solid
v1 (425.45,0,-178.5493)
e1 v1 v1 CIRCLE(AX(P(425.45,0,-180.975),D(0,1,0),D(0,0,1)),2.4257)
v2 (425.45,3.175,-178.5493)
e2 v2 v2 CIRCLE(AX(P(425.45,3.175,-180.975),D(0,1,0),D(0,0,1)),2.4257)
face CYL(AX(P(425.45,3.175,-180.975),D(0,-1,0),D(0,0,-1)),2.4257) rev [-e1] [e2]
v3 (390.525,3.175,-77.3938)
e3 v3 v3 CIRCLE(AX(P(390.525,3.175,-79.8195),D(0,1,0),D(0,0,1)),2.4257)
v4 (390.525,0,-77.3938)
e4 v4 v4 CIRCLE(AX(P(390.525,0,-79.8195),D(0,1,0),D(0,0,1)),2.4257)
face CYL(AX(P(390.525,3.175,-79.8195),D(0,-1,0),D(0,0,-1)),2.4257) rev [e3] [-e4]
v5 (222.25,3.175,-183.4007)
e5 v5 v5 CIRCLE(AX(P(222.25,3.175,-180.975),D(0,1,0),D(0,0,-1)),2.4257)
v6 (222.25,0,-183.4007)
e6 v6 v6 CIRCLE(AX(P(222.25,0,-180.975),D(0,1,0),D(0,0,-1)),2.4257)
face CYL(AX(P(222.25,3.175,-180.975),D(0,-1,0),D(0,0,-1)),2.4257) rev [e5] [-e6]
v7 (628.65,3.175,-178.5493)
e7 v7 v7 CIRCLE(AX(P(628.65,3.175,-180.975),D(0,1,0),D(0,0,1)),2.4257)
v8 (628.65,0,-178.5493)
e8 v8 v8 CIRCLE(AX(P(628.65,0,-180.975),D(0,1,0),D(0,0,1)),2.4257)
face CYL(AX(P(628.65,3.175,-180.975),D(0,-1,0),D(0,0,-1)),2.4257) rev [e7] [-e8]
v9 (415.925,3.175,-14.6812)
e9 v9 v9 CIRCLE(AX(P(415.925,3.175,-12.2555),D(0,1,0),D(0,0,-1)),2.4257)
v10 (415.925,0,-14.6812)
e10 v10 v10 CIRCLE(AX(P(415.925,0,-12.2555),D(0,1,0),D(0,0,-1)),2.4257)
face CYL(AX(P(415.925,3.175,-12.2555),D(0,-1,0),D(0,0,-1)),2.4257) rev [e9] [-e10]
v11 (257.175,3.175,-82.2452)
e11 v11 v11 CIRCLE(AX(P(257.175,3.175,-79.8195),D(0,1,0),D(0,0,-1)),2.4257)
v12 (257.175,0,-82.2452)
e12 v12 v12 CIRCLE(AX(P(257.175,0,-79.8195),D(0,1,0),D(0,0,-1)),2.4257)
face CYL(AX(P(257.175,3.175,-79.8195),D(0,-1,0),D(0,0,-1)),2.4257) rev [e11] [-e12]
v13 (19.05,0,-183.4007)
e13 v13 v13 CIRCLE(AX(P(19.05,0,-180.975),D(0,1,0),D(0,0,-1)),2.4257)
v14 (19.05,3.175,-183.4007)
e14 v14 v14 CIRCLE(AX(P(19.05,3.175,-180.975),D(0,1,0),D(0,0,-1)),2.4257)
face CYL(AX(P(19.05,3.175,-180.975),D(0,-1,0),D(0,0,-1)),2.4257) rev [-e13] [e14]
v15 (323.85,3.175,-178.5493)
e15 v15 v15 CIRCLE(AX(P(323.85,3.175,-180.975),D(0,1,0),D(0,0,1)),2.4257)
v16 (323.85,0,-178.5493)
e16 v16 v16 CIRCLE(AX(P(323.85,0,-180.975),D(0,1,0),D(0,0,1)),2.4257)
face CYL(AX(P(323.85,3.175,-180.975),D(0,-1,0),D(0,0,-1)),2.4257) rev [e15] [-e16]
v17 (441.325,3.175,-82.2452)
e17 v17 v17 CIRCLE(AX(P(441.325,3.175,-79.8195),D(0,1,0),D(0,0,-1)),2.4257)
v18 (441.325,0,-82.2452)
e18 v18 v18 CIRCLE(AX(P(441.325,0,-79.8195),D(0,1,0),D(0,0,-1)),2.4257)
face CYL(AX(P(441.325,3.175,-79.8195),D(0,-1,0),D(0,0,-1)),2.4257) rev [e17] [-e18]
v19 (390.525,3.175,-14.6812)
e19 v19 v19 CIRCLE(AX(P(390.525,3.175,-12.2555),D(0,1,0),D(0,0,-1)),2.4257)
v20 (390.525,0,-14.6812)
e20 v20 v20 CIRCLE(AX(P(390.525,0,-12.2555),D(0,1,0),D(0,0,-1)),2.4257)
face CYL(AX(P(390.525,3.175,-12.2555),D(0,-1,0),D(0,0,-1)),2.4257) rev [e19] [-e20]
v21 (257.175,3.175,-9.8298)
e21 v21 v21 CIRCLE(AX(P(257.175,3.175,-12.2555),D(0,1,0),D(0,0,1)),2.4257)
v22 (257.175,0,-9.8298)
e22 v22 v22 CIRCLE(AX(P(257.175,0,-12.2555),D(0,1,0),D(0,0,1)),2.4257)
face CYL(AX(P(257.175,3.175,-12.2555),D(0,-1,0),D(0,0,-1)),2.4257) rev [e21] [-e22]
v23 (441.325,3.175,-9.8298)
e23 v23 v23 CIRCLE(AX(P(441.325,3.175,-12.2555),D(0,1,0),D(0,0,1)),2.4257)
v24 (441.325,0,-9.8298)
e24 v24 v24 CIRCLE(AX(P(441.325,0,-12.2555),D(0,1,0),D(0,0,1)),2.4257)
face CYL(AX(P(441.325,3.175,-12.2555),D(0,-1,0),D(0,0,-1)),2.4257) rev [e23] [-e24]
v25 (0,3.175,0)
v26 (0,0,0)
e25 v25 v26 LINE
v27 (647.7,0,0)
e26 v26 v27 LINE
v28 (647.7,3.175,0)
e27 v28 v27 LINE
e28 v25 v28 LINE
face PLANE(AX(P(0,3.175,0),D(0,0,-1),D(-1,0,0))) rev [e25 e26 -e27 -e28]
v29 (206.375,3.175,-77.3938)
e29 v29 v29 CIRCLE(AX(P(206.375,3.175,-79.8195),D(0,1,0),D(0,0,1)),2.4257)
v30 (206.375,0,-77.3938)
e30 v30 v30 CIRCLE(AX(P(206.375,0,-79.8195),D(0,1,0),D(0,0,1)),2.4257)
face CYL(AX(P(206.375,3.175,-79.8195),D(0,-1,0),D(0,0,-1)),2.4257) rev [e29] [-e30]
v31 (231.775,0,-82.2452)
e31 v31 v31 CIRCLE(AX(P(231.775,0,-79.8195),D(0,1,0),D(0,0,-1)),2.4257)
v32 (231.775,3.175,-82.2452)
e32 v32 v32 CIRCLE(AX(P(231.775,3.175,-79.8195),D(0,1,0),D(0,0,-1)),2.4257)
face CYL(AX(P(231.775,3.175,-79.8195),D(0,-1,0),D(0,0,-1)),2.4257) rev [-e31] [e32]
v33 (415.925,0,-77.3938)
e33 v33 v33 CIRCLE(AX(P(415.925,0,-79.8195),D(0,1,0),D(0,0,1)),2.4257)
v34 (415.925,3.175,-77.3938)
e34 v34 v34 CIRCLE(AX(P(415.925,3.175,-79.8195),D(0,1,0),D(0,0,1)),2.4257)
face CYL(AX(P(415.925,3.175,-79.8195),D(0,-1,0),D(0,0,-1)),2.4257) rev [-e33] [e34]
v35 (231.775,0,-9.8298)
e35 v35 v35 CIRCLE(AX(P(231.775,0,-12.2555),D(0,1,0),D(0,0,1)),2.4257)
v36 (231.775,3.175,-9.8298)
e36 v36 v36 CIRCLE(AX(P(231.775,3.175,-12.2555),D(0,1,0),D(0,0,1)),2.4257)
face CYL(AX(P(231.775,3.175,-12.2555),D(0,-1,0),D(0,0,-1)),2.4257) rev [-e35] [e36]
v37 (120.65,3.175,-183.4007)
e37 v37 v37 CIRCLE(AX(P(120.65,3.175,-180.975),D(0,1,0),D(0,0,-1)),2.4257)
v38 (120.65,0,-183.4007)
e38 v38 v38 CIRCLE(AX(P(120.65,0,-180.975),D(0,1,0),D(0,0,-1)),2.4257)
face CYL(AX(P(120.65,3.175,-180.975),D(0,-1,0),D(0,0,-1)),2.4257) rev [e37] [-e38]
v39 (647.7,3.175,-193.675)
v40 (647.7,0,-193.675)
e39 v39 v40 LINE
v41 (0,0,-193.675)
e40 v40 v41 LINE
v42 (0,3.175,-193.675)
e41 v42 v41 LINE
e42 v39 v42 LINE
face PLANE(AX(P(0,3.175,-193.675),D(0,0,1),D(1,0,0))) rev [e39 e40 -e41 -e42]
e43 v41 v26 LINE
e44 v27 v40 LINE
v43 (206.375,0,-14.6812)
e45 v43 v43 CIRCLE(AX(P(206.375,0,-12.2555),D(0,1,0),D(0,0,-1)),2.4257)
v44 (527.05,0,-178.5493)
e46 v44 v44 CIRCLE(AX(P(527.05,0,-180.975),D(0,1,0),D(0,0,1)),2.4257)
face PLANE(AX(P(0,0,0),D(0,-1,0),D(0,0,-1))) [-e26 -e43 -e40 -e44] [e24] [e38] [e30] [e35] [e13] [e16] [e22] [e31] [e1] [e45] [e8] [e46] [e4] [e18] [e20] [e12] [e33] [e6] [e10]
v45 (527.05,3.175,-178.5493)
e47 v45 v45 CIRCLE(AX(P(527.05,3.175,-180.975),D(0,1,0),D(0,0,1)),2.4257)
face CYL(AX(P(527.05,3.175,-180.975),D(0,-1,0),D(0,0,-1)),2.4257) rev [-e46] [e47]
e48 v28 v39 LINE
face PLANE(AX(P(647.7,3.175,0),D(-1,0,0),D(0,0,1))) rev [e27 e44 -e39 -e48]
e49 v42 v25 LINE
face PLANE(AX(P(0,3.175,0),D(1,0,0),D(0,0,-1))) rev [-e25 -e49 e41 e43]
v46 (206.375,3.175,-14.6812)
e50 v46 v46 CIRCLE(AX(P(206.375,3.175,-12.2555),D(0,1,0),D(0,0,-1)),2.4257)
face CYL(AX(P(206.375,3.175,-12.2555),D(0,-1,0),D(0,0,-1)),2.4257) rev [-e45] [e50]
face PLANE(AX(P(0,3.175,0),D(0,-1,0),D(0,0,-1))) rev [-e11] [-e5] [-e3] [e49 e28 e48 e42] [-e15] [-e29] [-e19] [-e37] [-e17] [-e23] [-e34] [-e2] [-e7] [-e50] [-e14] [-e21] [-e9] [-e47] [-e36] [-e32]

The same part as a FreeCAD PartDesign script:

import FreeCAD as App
import Part
import Sketcher
Q = App.Units.Quantity


def add_polygon(sketch, points):
    """Adds a closed chain of lines whose ends are joined by coincident constraints."""
    first, n = sketch.GeometryCount, len(points)
    for a, b in zip(points, points[1:] + points[:1]):
        sketch.addGeometry(Part.LineSegment(App.Vector(*a, 0), App.Vector(*b, 0)), False)
    for i in range(n):
        sketch.addConstraint(Sketcher.Constraint("Coincident", first + i, 2, first + (i + 1) % n, 1))

doc = App.newDocument("Part")
body = doc.addObject("PartDesign::Body", "Body")

# Sketch on XZ plane
sketch1 = body.newObject("Sketcher::SketchObject", "Sketch")
sketch1.AttachmentSupport = (doc.getObject("XZ_Plane"), [""])
sketch1.MapMode = "FlatFace"
add_polygon(sketch1, [(0, -193.7), (0, 0), (647.7, 0), (647.7, -193.7)])  # lines 0-3
sketch1.addGeometry(Part.Circle(App.Vector(206.4, -12.3, 0), App.Vector(0, 0, 1), 2.4), False)  # 4
sketch1.addGeometry(Part.Circle(App.Vector(231.8, -12.3, 0), App.Vector(0, 0, 1), 2.4), False)  # 5
sketch1.addGeometry(Part.Circle(App.Vector(257.2, -12.3, 0), App.Vector(0, 0, 1), 2.4), False)  # 6
sketch1.addGeometry(Part.Circle(App.Vector(206.4, -79.8, 0), App.Vector(0, 0, 1), 2.4), False)  # 7
sketch1.addGeometry(Part.Circle(App.Vector(231.8, -79.8, 0), App.Vector(0, 0, 1), 2.4), False)  # 8
sketch1.addGeometry(Part.Circle(App.Vector(257.2, -79.8, 0), App.Vector(0, 0, 1), 2.4), False)  # 9
sketch1.addGeometry(Part.Circle(App.Vector(390.5, -12.3, 0), App.Vector(0, 0, 1), 2.4), False)  # 10
sketch1.addGeometry(Part.Circle(App.Vector(415.9, -12.3, 0), App.Vector(0, 0, 1), 2.4), False)  # 11
sketch1.addGeometry(Part.Circle(App.Vector(441.3, -12.3, 0), App.Vector(0, 0, 1), 2.4), False)  # 12
sketch1.addGeometry(Part.Circle(App.Vector(390.5, -79.8, 0), App.Vector(0, 0, 1), 2.4), False)  # 13
sketch1.addGeometry(Part.Circle(App.Vector(415.9, -79.8, 0), App.Vector(0, 0, 1), 2.4), False)  # 14
sketch1.addGeometry(Part.Circle(App.Vector(441.3, -79.8, 0), App.Vector(0, 0, 1), 2.4), False)  # 15
sketch1.addGeometry(Part.Circle(App.Vector(19.1, -181, 0), App.Vector(0, 0, 1), 2.4), False)  # 16
sketch1.addGeometry(Part.Circle(App.Vector(120.7, -181, 0), App.Vector(0, 0, 1), 2.4), False)  # 17
sketch1.addGeometry(Part.Circle(App.Vector(222.2, -181, 0), App.Vector(0, 0, 1), 2.4), False)  # 18
sketch1.addGeometry(Part.Circle(App.Vector(323.9, -181, 0), App.Vector(0, 0, 1), 2.4), False)  # 19
sketch1.addGeometry(Part.Circle(App.Vector(425.4, -181, 0), App.Vector(0, 0, 1), 2.4), False)  # 20
sketch1.addGeometry(Part.Circle(App.Vector(527, -181, 0), App.Vector(0, 0, 1), 2.4), False)  # 21
sketch1.addGeometry(Part.Circle(App.Vector(628.6, -181, 0), App.Vector(0, 0, 1), 2.4), False)  # 22
sketch1.addConstraint([
    Sketcher.Constraint("Vertical", 0),
    Sketcher.Constraint("Horizontal", 1),
    Sketcher.Constraint("Vertical", 2),
    Sketcher.Constraint("Horizontal", 3),
    Sketcher.Constraint("Coincident", 0, 2, -1, 1),
    Sketcher.Constraint("Equal", 4, 5),
    Sketcher.Constraint("Equal", 5, 6),
    Sketcher.Constraint("Equal", 6, 7),
    Sketcher.Constraint("Equal", 7, 8),
    Sketcher.Constraint("Equal", 8, 9),
    Sketcher.Constraint("Equal", 9, 10),
    Sketcher.Constraint("Equal", 10, 11),
    Sketcher.Constraint("Equal", 11, 12),
    Sketcher.Constraint("Equal", 12, 13),
    Sketcher.Constraint("Equal", 13, 14),
    Sketcher.Constraint("Equal", 14, 15),
    Sketcher.Constraint("Equal", 15, 16),
    Sketcher.Constraint("Equal", 16, 17),
    Sketcher.Constraint("Equal", 17, 18),
    Sketcher.Constraint("Equal", 18, 19),
    Sketcher.Constraint("Equal", 19, 20),
    Sketcher.Constraint("Equal", 20, 21),
    Sketcher.Constraint("Equal", 21, 22),
    Sketcher.Constraint("Horizontal", 4, 3, 5, 3),
    Sketcher.Constraint("Horizontal", 5, 3, 6, 3),
    Sketcher.Constraint("Horizontal", 7, 3, 8, 3),
    Sketcher.Constraint("Horizontal", 8, 3, 9, 3),
    Sketcher.Constraint("Horizontal", 6, 3, 10, 3),
    Sketcher.Constraint("Horizontal", 10, 3, 11, 3),
    Sketcher.Constraint("Horizontal", 11, 3, 12, 3),
    Sketcher.Constraint("Horizontal", 9, 3, 13, 3),
    Sketcher.Constraint("Horizontal", 13, 3, 14, 3),
    Sketcher.Constraint("Horizontal", 14, 3, 15, 3),
    Sketcher.Constraint("Horizontal", 16, 3, 17, 3),
    Sketcher.Constraint("Horizontal", 17, 3, 18, 3),
    Sketcher.Constraint("Horizontal", 18, 3, 19, 3),
    Sketcher.Constraint("Horizontal", 19, 3, 20, 3),
    Sketcher.Constraint("Horizontal", 20, 3, 21, 3),
    Sketcher.Constraint("Horizontal", 21, 3, 22, 3),
    Sketcher.Constraint("Vertical", 4, 3, 7, 3),
    Sketcher.Constraint("Vertical", 5, 3, 8, 3),
    Sketcher.Constraint("Vertical", 6, 3, 9, 3),
    Sketcher.Constraint("Vertical", 10, 3, 13, 3),
    Sketcher.Constraint("Vertical", 11, 3, 14, 3),
    Sketcher.Constraint("Vertical", 12, 3, 15, 3),
    Sketcher.Constraint("Diameter", 4, Q("0.191 in")),
    Sketcher.Constraint("DistanceX", 1, 1, 1, 2, Q("25.5 in")),
    Sketcher.Constraint("DistanceX", 4, 3, 5, 3, Q("1 in")),
    Sketcher.Constraint("DistanceX", 5, 3, 6, 3, Q("1 in")),
    Sketcher.Constraint("DistanceX", 10, 3, 11, 3, Q("1 in")),
    Sketcher.Constraint("DistanceX", 11, 3, 12, 3, Q("1 in")),
    Sketcher.Constraint("DistanceX", 16, 3, 17, 3, Q("4 in")),
    Sketcher.Constraint("DistanceX", 17, 3, 18, 3, Q("4 in")),
    Sketcher.Constraint("DistanceX", 18, 3, 19, 3, Q("4 in")),
    Sketcher.Constraint("DistanceX", 19, 3, 20, 3, Q("4 in")),
    Sketcher.Constraint("DistanceX", 20, 3, 21, 3, Q("4 in")),
    Sketcher.Constraint("DistanceX", 21, 3, 22, 3, Q("4 in")),
    Sketcher.Constraint("DistanceY", 2, 2, 22, 3, Q("0.5 in")),
    Sketcher.Constraint("DistanceY", 0, 1, 0, 2, Q("7.625 in")),
    Sketcher.Constraint("DistanceX", -1, 1, 16, 3, Q("0.75 in")),
    Sketcher.Constraint("DistanceY", 7, 3, 4, 3, Q("2.66 in")),
    Sketcher.Constraint("DistanceX", 6, 3, 10, 3, Q("5.25 in")),
    Sketcher.Constraint("DistanceX", -1, 1, 4, 3, Q("8.125 in")),
    Sketcher.Constraint("DistanceY", 4, 3, -1, 1, Q("0.4825 in")),
])
pad1 = body.newObject("PartDesign::Pad", "Pad")
pad1.Profile = sketch1
pad1.Length = Q("0.125 in")
pad1.Reversed = True

doc.recompute()
